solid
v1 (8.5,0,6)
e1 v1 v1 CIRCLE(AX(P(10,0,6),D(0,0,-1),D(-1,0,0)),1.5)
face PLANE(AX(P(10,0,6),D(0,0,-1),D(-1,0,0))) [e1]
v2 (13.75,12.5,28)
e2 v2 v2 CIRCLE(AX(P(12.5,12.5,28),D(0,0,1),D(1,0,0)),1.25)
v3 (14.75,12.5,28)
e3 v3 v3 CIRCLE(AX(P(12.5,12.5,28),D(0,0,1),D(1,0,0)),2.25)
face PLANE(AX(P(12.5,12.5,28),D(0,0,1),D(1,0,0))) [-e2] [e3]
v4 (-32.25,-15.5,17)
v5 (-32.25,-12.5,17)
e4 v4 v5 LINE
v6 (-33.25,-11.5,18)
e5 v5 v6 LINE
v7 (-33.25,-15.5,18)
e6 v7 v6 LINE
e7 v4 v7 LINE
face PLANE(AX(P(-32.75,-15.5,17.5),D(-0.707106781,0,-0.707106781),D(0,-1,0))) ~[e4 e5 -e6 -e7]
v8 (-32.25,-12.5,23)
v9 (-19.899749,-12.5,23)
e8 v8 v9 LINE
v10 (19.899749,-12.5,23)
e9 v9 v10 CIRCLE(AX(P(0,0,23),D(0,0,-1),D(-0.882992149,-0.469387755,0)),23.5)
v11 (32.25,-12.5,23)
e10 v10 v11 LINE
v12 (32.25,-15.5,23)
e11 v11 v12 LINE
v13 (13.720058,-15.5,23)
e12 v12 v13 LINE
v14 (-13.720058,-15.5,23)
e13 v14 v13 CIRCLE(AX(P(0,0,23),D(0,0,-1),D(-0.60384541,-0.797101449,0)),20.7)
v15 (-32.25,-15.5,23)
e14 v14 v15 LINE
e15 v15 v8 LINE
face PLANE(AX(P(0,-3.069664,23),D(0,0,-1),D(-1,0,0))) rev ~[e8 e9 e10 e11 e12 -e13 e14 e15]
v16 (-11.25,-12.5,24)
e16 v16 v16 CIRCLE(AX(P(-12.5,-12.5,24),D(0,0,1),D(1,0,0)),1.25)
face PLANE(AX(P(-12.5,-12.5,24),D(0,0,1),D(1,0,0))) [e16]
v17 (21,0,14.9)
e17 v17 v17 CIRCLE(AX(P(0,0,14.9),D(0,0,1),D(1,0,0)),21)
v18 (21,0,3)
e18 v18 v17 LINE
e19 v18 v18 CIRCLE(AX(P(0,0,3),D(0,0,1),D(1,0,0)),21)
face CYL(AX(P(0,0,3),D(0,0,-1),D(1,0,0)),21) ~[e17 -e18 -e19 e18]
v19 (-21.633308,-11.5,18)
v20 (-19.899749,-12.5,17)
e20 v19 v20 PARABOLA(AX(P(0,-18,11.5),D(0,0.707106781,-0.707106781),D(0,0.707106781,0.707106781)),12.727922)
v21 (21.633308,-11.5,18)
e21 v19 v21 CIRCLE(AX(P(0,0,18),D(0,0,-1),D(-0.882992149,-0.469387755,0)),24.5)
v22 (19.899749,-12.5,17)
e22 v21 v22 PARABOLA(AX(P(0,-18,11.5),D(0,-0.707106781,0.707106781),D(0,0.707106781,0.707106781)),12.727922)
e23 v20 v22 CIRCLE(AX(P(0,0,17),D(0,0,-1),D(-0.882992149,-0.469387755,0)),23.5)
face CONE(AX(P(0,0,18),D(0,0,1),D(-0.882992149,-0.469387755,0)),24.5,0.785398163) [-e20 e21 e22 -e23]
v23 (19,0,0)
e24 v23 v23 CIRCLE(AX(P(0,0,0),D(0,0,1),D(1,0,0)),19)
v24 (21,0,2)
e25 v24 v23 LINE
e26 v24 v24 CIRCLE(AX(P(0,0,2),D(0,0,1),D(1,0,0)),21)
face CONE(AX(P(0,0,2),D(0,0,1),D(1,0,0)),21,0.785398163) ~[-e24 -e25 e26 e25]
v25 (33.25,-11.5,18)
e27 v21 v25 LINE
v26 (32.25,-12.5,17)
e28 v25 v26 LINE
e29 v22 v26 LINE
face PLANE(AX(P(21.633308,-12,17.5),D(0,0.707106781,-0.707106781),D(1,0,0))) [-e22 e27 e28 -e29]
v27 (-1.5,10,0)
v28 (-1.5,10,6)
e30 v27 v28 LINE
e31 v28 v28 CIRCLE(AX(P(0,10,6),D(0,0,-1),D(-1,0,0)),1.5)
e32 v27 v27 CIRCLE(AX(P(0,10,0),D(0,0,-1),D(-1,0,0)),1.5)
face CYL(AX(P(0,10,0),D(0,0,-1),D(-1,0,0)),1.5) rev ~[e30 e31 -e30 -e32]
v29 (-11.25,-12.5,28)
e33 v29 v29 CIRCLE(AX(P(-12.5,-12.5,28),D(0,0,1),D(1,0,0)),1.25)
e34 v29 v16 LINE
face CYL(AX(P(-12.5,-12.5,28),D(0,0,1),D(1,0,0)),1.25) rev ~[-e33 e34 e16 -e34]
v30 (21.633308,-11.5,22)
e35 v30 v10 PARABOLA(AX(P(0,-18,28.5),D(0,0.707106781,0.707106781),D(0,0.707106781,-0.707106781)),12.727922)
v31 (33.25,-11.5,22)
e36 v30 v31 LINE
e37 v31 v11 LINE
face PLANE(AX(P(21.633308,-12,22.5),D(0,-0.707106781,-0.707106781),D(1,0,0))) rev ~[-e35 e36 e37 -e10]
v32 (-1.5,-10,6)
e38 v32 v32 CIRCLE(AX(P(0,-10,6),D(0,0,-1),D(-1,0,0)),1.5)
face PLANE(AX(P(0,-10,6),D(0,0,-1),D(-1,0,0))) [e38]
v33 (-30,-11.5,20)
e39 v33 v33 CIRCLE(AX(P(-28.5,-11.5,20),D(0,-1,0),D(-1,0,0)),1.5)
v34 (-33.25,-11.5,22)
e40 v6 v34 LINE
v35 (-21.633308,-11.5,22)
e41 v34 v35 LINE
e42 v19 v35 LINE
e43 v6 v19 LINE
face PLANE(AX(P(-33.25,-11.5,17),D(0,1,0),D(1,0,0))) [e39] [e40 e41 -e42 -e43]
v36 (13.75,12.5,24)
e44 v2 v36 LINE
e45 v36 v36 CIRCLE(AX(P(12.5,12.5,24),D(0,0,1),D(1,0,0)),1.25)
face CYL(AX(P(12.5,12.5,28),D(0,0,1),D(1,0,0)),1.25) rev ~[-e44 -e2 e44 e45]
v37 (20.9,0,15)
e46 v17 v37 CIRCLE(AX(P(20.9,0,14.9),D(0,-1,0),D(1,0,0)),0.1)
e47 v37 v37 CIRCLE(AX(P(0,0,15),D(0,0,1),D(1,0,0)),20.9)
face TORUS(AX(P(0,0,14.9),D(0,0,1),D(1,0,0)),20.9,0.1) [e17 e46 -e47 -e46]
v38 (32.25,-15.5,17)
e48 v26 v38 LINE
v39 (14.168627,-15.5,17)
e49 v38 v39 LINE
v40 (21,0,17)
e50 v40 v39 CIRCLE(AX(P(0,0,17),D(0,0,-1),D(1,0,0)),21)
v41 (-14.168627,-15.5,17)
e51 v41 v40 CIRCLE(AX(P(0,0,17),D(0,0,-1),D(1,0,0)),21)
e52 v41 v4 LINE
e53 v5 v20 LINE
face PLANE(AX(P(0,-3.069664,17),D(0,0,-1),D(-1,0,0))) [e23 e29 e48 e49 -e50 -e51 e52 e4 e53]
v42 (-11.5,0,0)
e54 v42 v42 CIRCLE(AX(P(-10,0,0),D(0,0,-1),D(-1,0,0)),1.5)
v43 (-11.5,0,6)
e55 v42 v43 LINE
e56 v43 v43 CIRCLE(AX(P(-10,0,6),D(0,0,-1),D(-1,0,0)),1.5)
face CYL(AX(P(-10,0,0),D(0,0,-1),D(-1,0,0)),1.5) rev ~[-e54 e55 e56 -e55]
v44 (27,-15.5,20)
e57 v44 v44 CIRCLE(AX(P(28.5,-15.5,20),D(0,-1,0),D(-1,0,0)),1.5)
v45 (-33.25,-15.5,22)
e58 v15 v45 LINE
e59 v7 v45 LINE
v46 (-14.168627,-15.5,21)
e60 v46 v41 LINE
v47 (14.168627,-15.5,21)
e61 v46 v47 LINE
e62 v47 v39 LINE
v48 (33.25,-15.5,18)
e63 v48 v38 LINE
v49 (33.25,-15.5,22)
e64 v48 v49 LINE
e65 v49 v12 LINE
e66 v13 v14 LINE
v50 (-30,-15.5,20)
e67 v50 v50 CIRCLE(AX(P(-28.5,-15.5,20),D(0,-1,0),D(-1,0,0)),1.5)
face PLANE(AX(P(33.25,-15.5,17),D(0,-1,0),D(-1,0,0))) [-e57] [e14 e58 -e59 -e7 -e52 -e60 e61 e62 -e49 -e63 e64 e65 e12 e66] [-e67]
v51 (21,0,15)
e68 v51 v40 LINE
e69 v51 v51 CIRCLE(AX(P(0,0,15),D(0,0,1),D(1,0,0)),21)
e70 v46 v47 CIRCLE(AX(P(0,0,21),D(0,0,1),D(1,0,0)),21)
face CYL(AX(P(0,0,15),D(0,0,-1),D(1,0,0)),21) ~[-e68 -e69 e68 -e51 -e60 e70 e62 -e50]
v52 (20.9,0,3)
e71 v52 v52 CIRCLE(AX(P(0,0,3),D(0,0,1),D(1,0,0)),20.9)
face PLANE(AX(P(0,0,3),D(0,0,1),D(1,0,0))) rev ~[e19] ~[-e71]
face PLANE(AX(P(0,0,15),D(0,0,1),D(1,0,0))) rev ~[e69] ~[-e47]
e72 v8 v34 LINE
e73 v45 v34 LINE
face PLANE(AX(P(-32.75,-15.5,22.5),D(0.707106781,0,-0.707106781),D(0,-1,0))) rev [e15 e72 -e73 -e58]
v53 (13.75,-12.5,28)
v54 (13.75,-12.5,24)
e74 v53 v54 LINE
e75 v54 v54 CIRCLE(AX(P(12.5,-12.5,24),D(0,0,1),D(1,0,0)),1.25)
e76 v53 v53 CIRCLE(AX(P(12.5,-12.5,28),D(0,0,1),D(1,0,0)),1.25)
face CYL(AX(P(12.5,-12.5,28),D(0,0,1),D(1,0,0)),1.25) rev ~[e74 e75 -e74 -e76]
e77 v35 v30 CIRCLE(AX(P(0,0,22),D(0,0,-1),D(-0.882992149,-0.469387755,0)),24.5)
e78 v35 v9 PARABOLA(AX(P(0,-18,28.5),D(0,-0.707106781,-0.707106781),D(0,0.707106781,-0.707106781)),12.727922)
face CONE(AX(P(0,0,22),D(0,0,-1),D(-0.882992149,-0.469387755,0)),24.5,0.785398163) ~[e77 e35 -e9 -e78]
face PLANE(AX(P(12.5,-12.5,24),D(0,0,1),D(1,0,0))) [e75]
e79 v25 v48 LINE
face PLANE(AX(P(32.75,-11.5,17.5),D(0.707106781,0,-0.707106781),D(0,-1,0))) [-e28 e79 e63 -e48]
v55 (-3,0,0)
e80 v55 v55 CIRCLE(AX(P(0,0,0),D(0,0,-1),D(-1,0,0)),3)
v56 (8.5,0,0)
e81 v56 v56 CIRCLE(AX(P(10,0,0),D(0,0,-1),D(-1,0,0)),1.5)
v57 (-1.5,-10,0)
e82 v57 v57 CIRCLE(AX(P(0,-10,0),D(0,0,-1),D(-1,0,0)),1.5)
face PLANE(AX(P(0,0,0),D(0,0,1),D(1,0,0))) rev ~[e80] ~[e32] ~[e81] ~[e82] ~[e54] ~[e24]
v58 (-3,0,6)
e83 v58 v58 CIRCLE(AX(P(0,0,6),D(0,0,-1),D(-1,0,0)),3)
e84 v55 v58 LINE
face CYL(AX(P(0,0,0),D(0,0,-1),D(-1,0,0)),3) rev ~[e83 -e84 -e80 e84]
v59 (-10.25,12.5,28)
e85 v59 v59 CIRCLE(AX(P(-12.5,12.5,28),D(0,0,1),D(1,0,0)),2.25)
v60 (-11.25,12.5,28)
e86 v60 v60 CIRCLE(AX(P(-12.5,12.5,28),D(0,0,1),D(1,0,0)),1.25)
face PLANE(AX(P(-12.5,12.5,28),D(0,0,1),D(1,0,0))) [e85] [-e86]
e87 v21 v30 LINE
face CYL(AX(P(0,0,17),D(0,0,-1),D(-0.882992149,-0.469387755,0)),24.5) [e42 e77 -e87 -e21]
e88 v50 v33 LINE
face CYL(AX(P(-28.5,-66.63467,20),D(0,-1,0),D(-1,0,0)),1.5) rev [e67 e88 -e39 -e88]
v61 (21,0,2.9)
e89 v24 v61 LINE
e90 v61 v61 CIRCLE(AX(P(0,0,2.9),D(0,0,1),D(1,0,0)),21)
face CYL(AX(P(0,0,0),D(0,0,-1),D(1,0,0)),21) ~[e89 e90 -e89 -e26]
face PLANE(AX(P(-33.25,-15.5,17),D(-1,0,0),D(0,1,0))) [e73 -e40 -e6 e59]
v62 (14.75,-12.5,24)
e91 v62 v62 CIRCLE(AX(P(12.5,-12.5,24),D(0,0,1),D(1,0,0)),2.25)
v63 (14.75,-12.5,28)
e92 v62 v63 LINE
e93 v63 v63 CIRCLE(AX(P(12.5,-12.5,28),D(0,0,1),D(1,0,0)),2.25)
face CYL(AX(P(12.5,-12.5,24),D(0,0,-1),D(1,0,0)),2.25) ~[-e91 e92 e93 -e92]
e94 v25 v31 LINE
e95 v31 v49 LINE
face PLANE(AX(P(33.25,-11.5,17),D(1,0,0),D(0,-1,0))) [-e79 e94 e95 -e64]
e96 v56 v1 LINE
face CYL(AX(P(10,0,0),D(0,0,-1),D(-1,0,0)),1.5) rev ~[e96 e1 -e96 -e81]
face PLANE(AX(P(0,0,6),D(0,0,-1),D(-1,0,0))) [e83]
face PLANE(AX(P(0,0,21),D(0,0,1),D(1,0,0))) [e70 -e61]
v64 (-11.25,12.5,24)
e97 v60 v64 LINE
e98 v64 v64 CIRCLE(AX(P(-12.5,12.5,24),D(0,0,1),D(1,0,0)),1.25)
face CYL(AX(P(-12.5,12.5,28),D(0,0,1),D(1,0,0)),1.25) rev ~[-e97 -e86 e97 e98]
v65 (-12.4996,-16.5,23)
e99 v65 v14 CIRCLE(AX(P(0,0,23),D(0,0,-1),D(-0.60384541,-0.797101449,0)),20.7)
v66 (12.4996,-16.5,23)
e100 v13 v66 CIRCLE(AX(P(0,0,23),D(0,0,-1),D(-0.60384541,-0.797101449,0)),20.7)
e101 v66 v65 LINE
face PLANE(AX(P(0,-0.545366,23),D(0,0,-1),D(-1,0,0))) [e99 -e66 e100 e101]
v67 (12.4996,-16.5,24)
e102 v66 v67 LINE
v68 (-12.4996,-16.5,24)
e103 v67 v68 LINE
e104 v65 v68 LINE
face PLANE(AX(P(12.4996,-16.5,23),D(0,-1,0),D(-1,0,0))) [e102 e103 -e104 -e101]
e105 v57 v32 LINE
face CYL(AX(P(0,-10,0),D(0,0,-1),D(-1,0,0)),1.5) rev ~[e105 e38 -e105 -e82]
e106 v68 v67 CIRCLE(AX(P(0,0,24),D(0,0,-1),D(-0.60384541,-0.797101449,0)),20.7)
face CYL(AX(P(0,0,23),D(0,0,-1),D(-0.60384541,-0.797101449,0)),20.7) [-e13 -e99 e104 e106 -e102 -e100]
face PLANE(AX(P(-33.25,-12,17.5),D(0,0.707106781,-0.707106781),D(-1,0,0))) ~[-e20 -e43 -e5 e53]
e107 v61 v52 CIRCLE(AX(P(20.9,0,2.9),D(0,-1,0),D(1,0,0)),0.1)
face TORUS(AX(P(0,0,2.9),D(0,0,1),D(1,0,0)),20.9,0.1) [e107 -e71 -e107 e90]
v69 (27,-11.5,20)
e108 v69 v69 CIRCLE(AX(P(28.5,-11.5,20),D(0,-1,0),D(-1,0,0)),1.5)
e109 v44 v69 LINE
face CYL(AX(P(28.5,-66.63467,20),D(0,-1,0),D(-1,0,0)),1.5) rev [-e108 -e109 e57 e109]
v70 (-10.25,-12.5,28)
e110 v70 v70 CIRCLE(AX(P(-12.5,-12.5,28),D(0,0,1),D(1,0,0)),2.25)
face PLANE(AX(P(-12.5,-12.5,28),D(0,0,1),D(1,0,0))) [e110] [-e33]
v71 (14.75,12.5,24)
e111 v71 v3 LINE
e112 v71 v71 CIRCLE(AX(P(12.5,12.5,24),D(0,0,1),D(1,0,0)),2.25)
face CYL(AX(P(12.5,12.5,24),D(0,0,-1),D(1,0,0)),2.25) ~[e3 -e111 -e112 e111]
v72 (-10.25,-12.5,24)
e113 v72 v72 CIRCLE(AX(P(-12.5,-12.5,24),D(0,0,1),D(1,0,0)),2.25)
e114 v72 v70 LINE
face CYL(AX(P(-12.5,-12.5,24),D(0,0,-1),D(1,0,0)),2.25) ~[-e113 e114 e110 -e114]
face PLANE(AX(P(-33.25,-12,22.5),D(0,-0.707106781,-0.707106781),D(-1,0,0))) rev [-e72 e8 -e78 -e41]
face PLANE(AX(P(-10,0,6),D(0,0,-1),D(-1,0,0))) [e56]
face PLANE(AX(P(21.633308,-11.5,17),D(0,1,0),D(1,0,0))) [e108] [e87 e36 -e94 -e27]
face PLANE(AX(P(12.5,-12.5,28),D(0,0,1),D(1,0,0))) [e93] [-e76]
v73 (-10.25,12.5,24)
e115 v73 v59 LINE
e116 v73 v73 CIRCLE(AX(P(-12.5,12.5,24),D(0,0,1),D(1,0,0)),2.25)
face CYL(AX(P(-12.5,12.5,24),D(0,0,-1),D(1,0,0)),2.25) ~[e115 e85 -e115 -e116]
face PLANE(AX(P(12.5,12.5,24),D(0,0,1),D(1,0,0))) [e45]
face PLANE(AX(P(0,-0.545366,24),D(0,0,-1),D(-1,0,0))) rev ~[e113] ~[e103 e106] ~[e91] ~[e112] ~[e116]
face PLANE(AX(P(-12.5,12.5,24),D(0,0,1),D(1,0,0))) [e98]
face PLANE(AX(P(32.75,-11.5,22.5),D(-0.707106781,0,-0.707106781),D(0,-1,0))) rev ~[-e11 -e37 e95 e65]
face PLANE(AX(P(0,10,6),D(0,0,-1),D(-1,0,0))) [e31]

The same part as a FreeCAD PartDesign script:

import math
import FreeCAD as App
import Part
import Sketcher
from FreeCAD import Vector


def edges_at(feature, points):
    """Names of the edges that pass closest to the given points."""
    edges = feature.Shape.Edges
    near = lambda p: min(range(len(edges)), key=lambda i: edges[i].distToShape(Part.Vertex(*p))[0])
    return sorted({f"Edge{near(p) + 1}" for p in points})

doc = App.newDocument("Part")
body = doc.addObject("PartDesign::Body", "Body")

sketch1 = body.newObject("Sketcher::SketchObject", "Sketch")
sketch1.AttachmentSupport = (doc.getObject("XY_Plane"), [""])
sketch1.MapMode = "FlatFace"
sketch1.addGeometry(Part.Circle(Vector(0, 0, 0), Vector(0, 0, 1), 21), False)
sketch1.addConstraint([
    Sketcher.Constraint("Coincident", 0, 3, -1, 1),
    Sketcher.Constraint("Diameter", 0, 42.0),
])
pad1 = body.newObject("PartDesign::Pad", "Pad")
pad1.Profile = sketch1
pad1.Length = 3
doc.recompute()

chamfer = body.newObject("PartDesign::Chamfer", "Chamfer")
chamfer.Base = (pad1, edges_at(pad1, [(-21, 0, 0)]))
chamfer.Size = 2
doc.recompute()

fillet = body.newObject("PartDesign::Fillet", "Fillet")
fillet.Base = (chamfer, edges_at(chamfer, [(-21, 0, 3)]))
fillet.Radius = 0.1

sketch2 = body.newObject("Sketcher::SketchObject", "Sketch001")
sketch2.AttachmentSupport = (doc.getObject("XY_Plane"), [""])
sketch2.MapMode = "FlatFace"
sketch2.AttachmentOffset = App.Placement(Vector(0, 0, 3), App.Rotation())
sketch2.addGeometry(Part.Circle(Vector(0, 0, 0), Vector(0, 0, 1), 21), False)
sketch2.addConstraint([
    Sketcher.Constraint("Coincident", 0, 3, -1, 1),
    Sketcher.Constraint("Diameter", 0, 42.0),
])
pad2 = body.newObject("PartDesign::Pad", "Pad001")
pad2.Profile = sketch2
pad2.Length = 12
doc.recompute()

fillet2 = body.newObject("PartDesign::Fillet", "Fillet001")
fillet2.Base = (pad2, edges_at(pad2, [(-21, 0, 15)]))
fillet2.Radius = 0.1

sketch3 = body.newObject("Sketcher::SketchObject", "Sketch002")
sketch3.AttachmentSupport = (doc.getObject("XY_Plane"), [""])
sketch3.MapMode = "FlatFace"
sketch3.AttachmentOffset = App.Placement(Vector(0, 0, 15), App.Rotation())
sketch3.addGeometry(Part.Circle(Vector(0, 0, 0), Vector(0, 0, 1), 21), False)
sketch3.addConstraint([
    Sketcher.Constraint("Coincident", 0, 3, -1, 1),
    Sketcher.Constraint("Diameter", 0, 42.0),
])
pad3 = body.newObject("PartDesign::Pad", "Pad002")
pad3.Profile = sketch3
pad3.Length = 6

sketch4 = body.newObject("Sketcher::SketchObject", "Sketch003")
sketch4.AttachmentSupport = (doc.getObject("XY_Plane"), [""])
sketch4.MapMode = "FlatFace"
sketch4.addGeometry([
    Part.Circle(Vector(0, 0, 0), Vector(0, 0, 1), 3),
    Part.Circle(Vector(10, 0, 0), Vector(0, 0, 1), 1.5),
    Part.Circle(Vector(0, 10, 0), Vector(0, 0, 1), 1.5),
    Part.Circle(Vector(-10, 0, 0), Vector(0, 0, 1), 1.5),
    Part.Circle(Vector(0, -10, 0), Vector(0, 0, 1), 1.5),
], False)
sketch4.addConstraint([
    Sketcher.Constraint("Coincident", 0, 3, -1, 1),
    Sketcher.Constraint("Equal", 1, 2),
    Sketcher.Constraint("Equal", 2, 3),
    Sketcher.Constraint("Equal", 3, 4),
    Sketcher.Constraint("Symmetric", 1, 3, 3, 3, -1, 1),
    Sketcher.Constraint("Symmetric", 2, 3, 4, 3, -1, 1),
    Sketcher.Constraint("PointOnObject", 1, 3, -1),
    Sketcher.Constraint("PointOnObject", 2, 3, -2),
    Sketcher.Constraint("Diameter", 0, 6.0),
    Sketcher.Constraint("Diameter", 1, 3.0),
    Sketcher.Constraint("DistanceX", -1, 1, 1, 3, 10.0),
    Sketcher.Constraint("DistanceY", -1, 1, 2, 3, 10.0),
])
pocket1 = body.newObject("PartDesign::Pocket", "Pocket")
pocket1.Profile = sketch4
pocket1.Length = 6
pocket1.Reversed = True

sketch5 = body.newObject("Sketcher::SketchObject", "Sketch004")
sketch5.AttachmentSupport = (doc.getObject("XY_Plane"), [""])
sketch5.MapMode = "FlatFace"
sketch5.AttachmentOffset = App.Placement(Vector(0, 0, 17), App.Rotation())
sketch5.addGeometry([
    Part.LineSegment(Vector(33.25, -11.5, 0), Vector(21.633308, -11.5, 0)),
    Part.ArcOfCircle(Part.Circle(Vector(0, 0, 0), Vector(0, 0, 1), 24.5), math.radians(-27.994562), math.radians(207.994562)),
    Part.LineSegment(Vector(-21.633308, -11.5, 0), Vector(-33.25, -11.5, 0)),
    Part.LineSegment(Vector(-33.25, -11.5, 0), Vector(-33.25, -15.5, 0)),
    Part.LineSegment(Vector(-33.25, -15.5, 0), Vector(33.25, -15.5, 0)),
    Part.LineSegment(Vector(33.25, -15.5, 0), Vector(33.25, -11.5, 0)),
], False)
sketch5.addConstraint([
    Sketcher.Constraint("Coincident", 0, 2, 1, 1),
    Sketcher.Constraint("Coincident", 1, 2, 2, 1),
    Sketcher.Constraint("Coincident", 2, 2, 3, 1),
    Sketcher.Constraint("Coincident", 3, 2, 4, 1),
    Sketcher.Constraint("Coincident", 4, 2, 5, 1),
    Sketcher.Constraint("Coincident", 5, 2, 0, 1),
    Sketcher.Constraint("Horizontal", 0),
    Sketcher.Constraint("Horizontal", 2),
    Sketcher.Constraint("Vertical", 3),
    Sketcher.Constraint("Horizontal", 4),
    Sketcher.Constraint("Vertical", 5),
    Sketcher.Constraint("Coincident", 1, 3, -1, 1),
    Sketcher.Constraint("Symmetric", 2, 2, 5, 2, -2),
    Sketcher.Constraint("Radius", 1, 24.5),
    Sketcher.Constraint("DistanceY", 3, 2, 3, 1, 4.0),
    Sketcher.Constraint("DistanceX", 4, 1, 4, 2, 66.5),
    Sketcher.Constraint("DistanceY", 0, 2, -1, 1, 11.5),
])
pad4 = body.newObject("PartDesign::Pad", "Pad003")
pad4.Profile = sketch5
pad4.Length = 6
doc.recompute()

chamfer2 = body.newObject("PartDesign::Chamfer", "Chamfer001")
chamfer2.Base = (pad4, edges_at(pad4, [
    (0, 24.5, 17),
    (-27.442, -11.5, 17),
    (-33.25, -13.5, 17),
    (33.25, -13.5, 17),
    (27.442, -11.5, 17),
    (0, 24.5, 23),
    (-27.442, -11.5, 23),
    (-33.25, -13.5, 23),
    (33.25, -13.5, 23),
    (27.442, -11.5, 23),
]))
chamfer2.Size = 1

sketch6 = body.newObject("Sketcher::SketchObject", "Sketch005")
sketch6.AttachmentSupport = (doc.getObject("XZ_Plane"), [""])
sketch6.MapMode = "FlatFace"
sketch6.AttachmentOffset = App.Placement(Vector(0, 0, 11.5), App.Rotation())
sketch6.addGeometry([
    Part.Circle(Vector(-28.5, 20, 0), Vector(0, 0, 1), 1.5),
    Part.Circle(Vector(28.5, 20, 0), Vector(0, 0, 1), 1.5),
], False)
sketch6.addConstraint([
    Sketcher.Constraint("Equal", 0, 1),
    Sketcher.Constraint("Symmetric", 0, 3, 1, 3, -2),
    Sketcher.Constraint("Diameter", 0, 3.0),
    Sketcher.Constraint("DistanceY", -1, 1, 0, 3, 20.0),
    Sketcher.Constraint("DistanceX", 0, 3, 1, 3, 57.0),
])
pocket2 = body.newObject("PartDesign::Pocket", "Pocket001")
pocket2.Profile = sketch6
pocket2.Type = "ThroughAll"
pocket2.Midplane = True

sketch7 = body.newObject("Sketcher::SketchObject", "Sketch006")
sketch7.AttachmentSupport = (doc.getObject("XY_Plane"), [""])
sketch7.MapMode = "FlatFace"
sketch7.AttachmentOffset = App.Placement(Vector(0, 0, 23), App.Rotation())
sketch7.addGeometry([
    Part.LineSegment(Vector(-12.4996, -16.5, 0), Vector(12.4996, -16.5, 0)),
    Part.ArcOfCircle(Part.Circle(Vector(0, 0, 0), Vector(0, 0, 1), 20.7), math.radians(-52.854196), math.radians(232.854196)),
], False)
sketch7.addConstraint([
    Sketcher.Constraint("Coincident", 0, 1, 1, 2),
    Sketcher.Constraint("Coincident", 1, 1, 0, 2),
    Sketcher.Constraint("Horizontal", 0),
    Sketcher.Constraint("Coincident", 1, 3, -1, 1),
    Sketcher.Constraint("Radius", 1, 20.7),
    Sketcher.Constraint("DistanceY", 0, 1, -1, 1, 16.5),
])
pad5 = body.newObject("PartDesign::Pad", "Pad004")
pad5.Profile = sketch7
pad5.Length = 1

sketch8 = body.newObject("Sketcher::SketchObject", "Sketch007")
sketch8.AttachmentSupport = (doc.getObject("XY_Plane"), [""])
sketch8.MapMode = "FlatFace"
sketch8.AttachmentOffset = App.Placement(Vector(0, 0, 24), App.Rotation())
sketch8.addGeometry([
    Part.Circle(Vector(-12.5, 12.5, 0), Vector(0, 0, 1), 2.25),
    Part.Circle(Vector(12.5, 12.5, 0), Vector(0, 0, 1), 2.25),
    Part.Circle(Vector(12.5, -12.5, 0), Vector(0, 0, 1), 2.25),
    Part.Circle(Vector(-12.5, -12.5, 0), Vector(0, 0, 1), 2.25),
], False)
sketch8.addConstraint([
    Sketcher.Constraint("Equal", 0, 1),
    Sketcher.Constraint("Equal", 1, 2),
    Sketcher.Constraint("Equal", 2, 3),
    Sketcher.Constraint("Symmetric", 0, 3, 2, 3, -1, 1),
    Sketcher.Constraint("Symmetric", 1, 3, 3, 3, -1, 1),
    Sketcher.Constraint("Symmetric", 0, 3, 1, 3, -2),
    Sketcher.Constraint("Diameter", 0, 4.5),
    Sketcher.Constraint("DistanceX", 0, 3, 1, 3, 25.0),
    Sketcher.Constraint("DistanceY", 2, 3, 1, 3, 25.0),
])
pad6 = body.newObject("PartDesign::Pad", "Pad005")
pad6.Profile = sketch8
pad6.Length = 4

sketch9 = body.newObject("Sketcher::SketchObject", "Sketch008")
sketch9.AttachmentSupport = (doc.getObject("XY_Plane"), [""])
sketch9.MapMode = "FlatFace"
sketch9.AttachmentOffset = App.Placement(Vector(0, 0, 28), App.Rotation())
sketch9.addGeometry([
    Part.Circle(Vector(12.5, 12.5, 0), Vector(0, 0, 1), 1.25),
    Part.Circle(Vector(12.5, -12.5, 0), Vector(0, 0, 1), 1.25),
    Part.Circle(Vector(-12.5, 12.5, 0), Vector(0, 0, 1), 1.25),
    Part.Circle(Vector(-12.5, -12.5, 0), Vector(0, 0, 1), 1.25),
], False)
sketch9.addConstraint([
    Sketcher.Constraint("Equal", 0, 1),
    Sketcher.Constraint("Equal", 1, 2),
    Sketcher.Constraint("Equal", 2, 3),
    Sketcher.Constraint("Symmetric", 1, 3, 2, 3, -1, 1),
    Sketcher.Constraint("Symmetric", 0, 3, 3, 3, -1, 1),
    Sketcher.Constraint("Symmetric", 0, 3, 2, 3, -2),
    Sketcher.Constraint("Diameter", 0, 2.5),
    Sketcher.Constraint("DistanceY", 1, 3, 0, 3, 25.0),
    Sketcher.Constraint("DistanceX", 2, 3, 0, 3, 25.0),
])
pocket3 = body.newObject("PartDesign::Pocket", "Pocket002")
pocket3.Profile = sketch9
pocket3.Length = 4

doc.recompute()
